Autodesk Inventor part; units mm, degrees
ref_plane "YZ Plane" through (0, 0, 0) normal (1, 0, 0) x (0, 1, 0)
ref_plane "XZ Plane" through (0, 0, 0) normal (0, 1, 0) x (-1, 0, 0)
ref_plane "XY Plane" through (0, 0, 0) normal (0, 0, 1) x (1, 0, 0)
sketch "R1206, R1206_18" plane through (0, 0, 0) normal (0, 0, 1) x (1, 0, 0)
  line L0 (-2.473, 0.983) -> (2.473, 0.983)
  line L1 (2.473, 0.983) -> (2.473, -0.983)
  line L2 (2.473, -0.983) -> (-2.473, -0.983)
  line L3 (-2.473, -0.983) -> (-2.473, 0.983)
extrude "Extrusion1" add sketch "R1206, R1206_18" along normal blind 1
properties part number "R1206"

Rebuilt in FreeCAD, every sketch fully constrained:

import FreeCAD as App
import Part
import Sketcher
from FreeCAD import Vector
Q = App.Units.Quantity


def add_polygon(sketch, points):
    """Adds a closed chain of lines whose ends are joined by coincident constraints."""
    first, n = sketch.GeometryCount, len(points)
    for a, b in zip(points, points[1:] + points[:1]):
        sketch.addGeometry(Part.LineSegment(App.Vector(*a, 0), App.Vector(*b, 0)), False)
    for i in range(n):
        sketch.addConstraint(Sketcher.Constraint("Coincident", first + i, 2, first + (i + 1) % n, 1))

doc = App.newDocument("Part")
body = doc.addObject("PartDesign::Body", "Body")

# Sketch on XY plane
sketch1 = body.newObject("Sketcher::SketchObject", "Sketch")
sketch1.AttachmentSupport = (doc.getObject("XY_Plane"), [""])
sketch1.MapMode = "FlatFace"
add_polygon(sketch1, [(2.5, 1), (-2.5, 1), (-2.5, -1), (2.5, -1)])  # lines 0-3
sketch1.addConstraint([
    Sketcher.Constraint("Horizontal", 0),
    Sketcher.Constraint("Vertical", 1),
    Sketcher.Constraint("Horizontal", 2),
    Sketcher.Constraint("Vertical", 3),
    Sketcher.Constraint("Symmetric", 0, 2, 2, 2, -1, 1),
    Sketcher.Constraint("DistanceX", 0, 2, 0, 1, Q("4.946 mm")),
    Sketcher.Constraint("DistanceY", 1, 2, 1, 1, Q("1.966 mm")),
])
pad1 = body.newObject("PartDesign::Pad", "Pad")
pad1.Profile = sketch1
pad1.Length = 1

doc.recompute()
